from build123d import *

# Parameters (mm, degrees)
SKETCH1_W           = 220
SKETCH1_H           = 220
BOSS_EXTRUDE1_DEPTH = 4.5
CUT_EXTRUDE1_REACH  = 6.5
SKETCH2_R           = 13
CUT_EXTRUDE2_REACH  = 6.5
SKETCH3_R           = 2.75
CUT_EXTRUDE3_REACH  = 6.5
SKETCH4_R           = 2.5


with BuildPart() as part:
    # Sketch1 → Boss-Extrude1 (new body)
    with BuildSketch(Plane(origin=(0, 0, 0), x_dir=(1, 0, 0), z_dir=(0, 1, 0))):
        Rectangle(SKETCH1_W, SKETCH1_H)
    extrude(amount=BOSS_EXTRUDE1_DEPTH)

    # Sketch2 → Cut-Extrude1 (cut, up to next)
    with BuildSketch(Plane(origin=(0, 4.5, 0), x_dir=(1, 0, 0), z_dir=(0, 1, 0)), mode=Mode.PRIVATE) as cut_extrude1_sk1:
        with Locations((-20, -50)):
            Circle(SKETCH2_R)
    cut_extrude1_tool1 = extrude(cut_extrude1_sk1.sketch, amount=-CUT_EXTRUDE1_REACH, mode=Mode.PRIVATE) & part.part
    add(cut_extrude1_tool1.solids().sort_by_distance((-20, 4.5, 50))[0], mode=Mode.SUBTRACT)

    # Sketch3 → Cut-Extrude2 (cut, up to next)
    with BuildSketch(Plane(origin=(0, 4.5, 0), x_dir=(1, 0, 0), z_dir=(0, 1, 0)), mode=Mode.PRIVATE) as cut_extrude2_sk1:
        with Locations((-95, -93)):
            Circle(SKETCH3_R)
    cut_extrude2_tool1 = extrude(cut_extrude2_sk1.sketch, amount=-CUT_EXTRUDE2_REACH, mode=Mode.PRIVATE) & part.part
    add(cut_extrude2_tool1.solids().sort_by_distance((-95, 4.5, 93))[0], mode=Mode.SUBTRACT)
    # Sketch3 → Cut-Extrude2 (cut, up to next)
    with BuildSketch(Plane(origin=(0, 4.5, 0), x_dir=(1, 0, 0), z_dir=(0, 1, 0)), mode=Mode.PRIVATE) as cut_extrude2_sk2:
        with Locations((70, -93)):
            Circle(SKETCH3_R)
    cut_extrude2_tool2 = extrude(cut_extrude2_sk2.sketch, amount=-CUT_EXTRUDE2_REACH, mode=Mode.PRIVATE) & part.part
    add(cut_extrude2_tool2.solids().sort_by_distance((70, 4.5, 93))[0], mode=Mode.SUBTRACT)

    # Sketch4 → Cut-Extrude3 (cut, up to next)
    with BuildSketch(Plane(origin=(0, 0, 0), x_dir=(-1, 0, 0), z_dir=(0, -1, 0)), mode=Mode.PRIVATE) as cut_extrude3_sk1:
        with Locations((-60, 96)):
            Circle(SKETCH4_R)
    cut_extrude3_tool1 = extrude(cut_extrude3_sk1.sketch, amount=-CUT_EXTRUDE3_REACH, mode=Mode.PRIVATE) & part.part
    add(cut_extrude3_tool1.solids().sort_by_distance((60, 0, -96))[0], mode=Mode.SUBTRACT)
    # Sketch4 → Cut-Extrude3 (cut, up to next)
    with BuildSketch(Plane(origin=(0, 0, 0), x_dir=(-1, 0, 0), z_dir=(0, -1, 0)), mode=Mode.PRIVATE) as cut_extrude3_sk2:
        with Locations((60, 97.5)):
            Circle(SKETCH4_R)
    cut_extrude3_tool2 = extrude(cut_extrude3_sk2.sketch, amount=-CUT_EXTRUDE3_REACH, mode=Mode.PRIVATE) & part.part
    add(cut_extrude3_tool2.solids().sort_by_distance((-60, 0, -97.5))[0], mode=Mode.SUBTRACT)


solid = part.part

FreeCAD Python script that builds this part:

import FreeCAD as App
import Part
import Sketcher
Q = App.Units.Quantity

doc = App.newDocument("Part")
body = doc.addObject("PartDesign::Body", "Body")

# Sketch on XZ plane
sketch1 = doc.addObject("Sketcher::SketchObject", "Sketch")
body.addObject(sketch1)
sketch1.AttachmentSupport = (doc.XZ_Plane, [""])
sketch1.MapMode = "FlatFace"
sketch1.addGeometry([
    Part.LineSegment(App.Vector(-110, -110, 0), App.Vector(-110, 110, 0)),
    Part.LineSegment(App.Vector(-110, 110, 0), App.Vector(110, 110, 0)),
    Part.LineSegment(App.Vector(110, 110, 0), App.Vector(110, -110, 0)),
    Part.LineSegment(App.Vector(110, -110, 0), App.Vector(-110, -110, 0)),
], False)
sketch1.addConstraint([
    Sketcher.Constraint("Coincident", 0, 2, 1, 1),
    Sketcher.Constraint("Coincident", 1, 2, 2, 1),
    Sketcher.Constraint("Coincident", 2, 2, 3, 1),
    Sketcher.Constraint("Coincident", 3, 2, 0, 1),
    Sketcher.Constraint("Vertical", 0),
    Sketcher.Constraint("Horizontal", 1),
    Sketcher.Constraint("Vertical", 2),
    Sketcher.Constraint("Horizontal", 3),
    Sketcher.Constraint("Symmetric", 0, 2, 2, 2, -1, 1),
    Sketcher.Constraint("Equal", 3, 0),
    Sketcher.Constraint("DistanceX", 1, 1, 1, 2, Q("220 mm")),
])
pad1 = doc.addObject("PartDesign::Pad", "Pad")
body.addObject(pad1)
pad1.Profile = sketch1
pad1.Length = 4.5
pad1.Reversed = True

# Sketch on XZ plane
sketch2 = doc.addObject("Sketcher::SketchObject", "Sketch001")
body.addObject(sketch2)
sketch2.AttachmentSupport = (doc.XZ_Plane, [""])
sketch2.MapMode = "FlatFace"
sketch2.AttachmentOffset = App.Placement(App.Vector(0, 0, -4.5), App.Rotation())
sketch2.addGeometry(Part.Circle(App.Vector(-20, 50, 0), App.Vector(0, 0, 1), 13), False)
sketch2.addConstraint([
    Sketcher.Constraint("Diameter", 0, Q("26 mm")),
    Sketcher.Constraint("DistanceX", 0, 3, -1, 1, Q("20 mm")),
    Sketcher.Constraint("DistanceY", -1, 1, 0, 3, Q("50 mm")),
])
pocket1 = doc.addObject("PartDesign::Pocket", "Pocket")
body.addObject(pocket1)
pocket1.Profile = sketch2
pocket1.Type = "UpToFirst"
pocket1.Reversed = True

# Sketch on XZ plane
sketch3 = doc.addObject("Sketcher::SketchObject", "Sketch002")
body.addObject(sketch3)
sketch3.AttachmentSupport = (doc.XZ_Plane, [""])
sketch3.MapMode = "FlatFace"
sketch3.AttachmentOffset = App.Placement(App.Vector(0, 0, -4.5), App.Rotation())
sketch3.addGeometry(Part.Circle(App.Vector(-95, 93, 0), App.Vector(0, 0, 1), 2.8), False)
sketch3.addConstraint([
    Sketcher.Constraint("Diameter", 0, Q("5.5 mm")),
    Sketcher.Constraint("DistanceX", 0, 3, -1, 1, Q("95 mm")),
    Sketcher.Constraint("DistanceY", -1, 1, 0, 3, Q("93 mm")),
])
pocket2 = doc.addObject("PartDesign::Pocket", "Pocket001")
body.addObject(pocket2)
pocket2.Profile = sketch3
pocket2.Type = "UpToFirst"
pocket2.Reversed = True

# Sketch on XZ plane
sketch4 = doc.addObject("Sketcher::SketchObject", "Sketch003")
body.addObject(sketch4)
sketch4.AttachmentSupport = (doc.XZ_Plane, [""])
sketch4.MapMode = "FlatFace"
sketch4.AttachmentOffset = App.Placement(App.Vector(0, 0, -4.5), App.Rotation())
sketch4.addGeometry(Part.Circle(App.Vector(70, 93, 0), App.Vector(0, 0, 1), 2.8), False)
sketch4.addConstraint([
    Sketcher.Constraint("Diameter", 0, Q("5.5 mm")),
    Sketcher.Constraint("DistanceX", -1, 1, 0, 3, Q("70 mm")),
    Sketcher.Constraint("DistanceY", -1, 1, 0, 3, Q("93 mm")),
])
pocket3 = doc.addObject("PartDesign::Pocket", "Pocket002")
body.addObject(pocket3)
pocket3.Profile = sketch4
pocket3.Type = "UpToFirst"
pocket3.Reversed = True

# Sketch on XZ plane
sketch5 = doc.addObject("Sketcher::SketchObject", "Sketch004")
body.addObject(sketch5)
sketch5.AttachmentSupport = (doc.XZ_Plane, [""])
sketch5.MapMode = "FlatFace"
sketch5.addGeometry(Part.Circle(App.Vector(60, -96, 0), App.Vector(0, 0, 1), 2.5), False)
sketch5.addConstraint([
    Sketcher.Constraint("Diameter", 0, Q("5 mm")),
    Sketcher.Constraint("DistanceX", -1, 1, 0, 3, Q("60 mm")),
    Sketcher.Constraint("DistanceY", 0, 3, -1, 1, Q("96 mm")),
])
pocket4 = doc.addObject("PartDesign::Pocket", "Pocket003")
body.addObject(pocket4)
pocket4.Profile = sketch5
pocket4.Type = "UpToFirst"

# Sketch on XZ plane
sketch6 = doc.addObject("Sketcher::SketchObject", "Sketch005")
body.addObject(sketch6)
sketch6.AttachmentSupport = (doc.XZ_Plane, [""])
sketch6.MapMode = "FlatFace"
sketch6.addGeometry(Part.Circle(App.Vector(-60, -97.5, 0), App.Vector(0, 0, 1), 2.5), False)
sketch6.addConstraint([
    Sketcher.Constraint("Diameter", 0, Q("5 mm")),
    Sketcher.Constraint("DistanceX", 0, 3, -1, 1, Q("60 mm")),
    Sketcher.Constraint("DistanceY", 0, 3, -1, 1, Q("97.5 mm")),
])
pocket5 = doc.addObject("PartDesign::Pocket", "Pocket004")
body.addObject(pocket5)
pocket5.Profile = sketch6
pocket5.Type = "UpToFirst"

doc.recompute()
